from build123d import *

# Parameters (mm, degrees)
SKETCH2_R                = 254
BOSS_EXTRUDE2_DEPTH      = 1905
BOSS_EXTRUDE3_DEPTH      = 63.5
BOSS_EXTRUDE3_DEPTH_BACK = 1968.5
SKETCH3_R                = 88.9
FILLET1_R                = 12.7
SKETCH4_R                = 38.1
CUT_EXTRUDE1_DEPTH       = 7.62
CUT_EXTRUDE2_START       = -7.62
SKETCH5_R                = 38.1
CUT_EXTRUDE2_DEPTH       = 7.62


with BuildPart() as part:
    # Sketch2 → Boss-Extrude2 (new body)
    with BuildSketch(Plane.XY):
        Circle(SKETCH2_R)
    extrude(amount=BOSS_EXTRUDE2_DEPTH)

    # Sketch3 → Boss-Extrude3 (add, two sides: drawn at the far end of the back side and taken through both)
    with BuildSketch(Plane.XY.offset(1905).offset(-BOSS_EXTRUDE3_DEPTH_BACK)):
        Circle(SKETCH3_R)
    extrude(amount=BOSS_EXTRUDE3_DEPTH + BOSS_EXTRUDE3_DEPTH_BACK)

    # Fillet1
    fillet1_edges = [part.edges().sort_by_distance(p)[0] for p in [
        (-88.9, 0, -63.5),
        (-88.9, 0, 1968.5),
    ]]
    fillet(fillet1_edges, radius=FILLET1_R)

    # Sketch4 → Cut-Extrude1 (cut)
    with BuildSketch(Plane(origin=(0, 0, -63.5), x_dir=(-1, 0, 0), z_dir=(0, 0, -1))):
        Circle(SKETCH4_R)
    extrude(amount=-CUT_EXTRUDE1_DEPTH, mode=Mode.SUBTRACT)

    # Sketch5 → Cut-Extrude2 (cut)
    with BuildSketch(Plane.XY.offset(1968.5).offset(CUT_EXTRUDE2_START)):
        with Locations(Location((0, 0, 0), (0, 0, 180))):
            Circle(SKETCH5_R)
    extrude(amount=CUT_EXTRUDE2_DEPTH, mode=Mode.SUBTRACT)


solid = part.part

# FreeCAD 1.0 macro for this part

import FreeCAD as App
import Part
import Sketcher
from FreeCAD import Vector
Q = App.Units.Quantity


def edges_at(feature, points):
    """Names of the edges that pass closest to the given points."""
    edges = feature.Shape.Edges
    near = lambda p: min(range(len(edges)), key=lambda i: edges[i].distToShape(Part.Vertex(*p))[0])
    return sorted({f"Edge{near(p) + 1}" for p in points})

doc = App.newDocument("Part")
body = doc.addObject("PartDesign::Body", "Body")

# Sketch on XY plane
sketch1 = body.newObject("Sketcher::SketchObject", "Sketch")
sketch1.AttachmentSupport = (doc.getObject("XY_Plane"), [""])
sketch1.MapMode = "FlatFace"
sketch1.addGeometry(Part.Circle(Vector(0, 0, 0), Vector(0, 0, 1), 254), False)
sketch1.addConstraint([
    Sketcher.Constraint("Coincident", 0, 3, -1, 1),
    Sketcher.Constraint("Diameter", 0, Q("20 in")),
])
pad1 = body.newObject("PartDesign::Pad", "Pad")
pad1.Profile = sketch1
pad1.Length = Q("75 in")

# Sketch on XY plane
sketch2 = body.newObject("Sketcher::SketchObject", "Sketch001")
sketch2.AttachmentSupport = (doc.getObject("XY_Plane"), [""])
sketch2.MapMode = "FlatFace"
sketch2.AttachmentOffset = App.Placement(Vector(0, 0, 75 * 25.4), App.Rotation())
sketch2.addGeometry(Part.Circle(Vector(0, 0, 0), Vector(0, 0, 1), 89), False)
sketch2.addConstraint([
    Sketcher.Constraint("Coincident", 0, 3, -1, 1),
    Sketcher.Constraint("Diameter", 0, Q("7 in")),
])
pad2 = body.newObject("PartDesign::Pad", "Pad001")
pad2.Profile = sketch2
pad2.Type = "TwoLengths"
pad2.Length = Q("2.5 in")
pad2.Length2 = Q("77.5 in")
doc.recompute()

fillet = body.newObject("PartDesign::Fillet", "Fillet")
fillet.Base = (pad2, edges_at(pad2, [(-88.9, 0, -63.5), (-88.9, 0, 1968.5)]))
fillet.Radius = Q("0.5 in")

# Sketch on XY plane
sketch3 = body.newObject("Sketcher::SketchObject", "Sketch002")
sketch3.AttachmentSupport = (doc.getObject("XY_Plane"), [""])
sketch3.MapMode = "FlatFace"
sketch3.AttachmentOffset = App.Placement(Vector(0, 0, -2.5 * 25.4), App.Rotation())
sketch3.addGeometry(Part.Circle(Vector(0, 0, 0), Vector(0, 0, 1), 38), False)
sketch3.addConstraint([
    Sketcher.Constraint("Coincident", 0, 3, -1, 1),
    Sketcher.Constraint("Diameter", 0, Q("3 in")),
])
pocket1 = body.newObject("PartDesign::Pocket", "Pocket")
pocket1.Profile = sketch3
pocket1.Length = Q("0.3 in")
pocket1.Reversed = True

# Sketch on XY plane
sketch4 = body.newObject("Sketcher::SketchObject", "Sketch003")
sketch4.AttachmentSupport = (doc.getObject("XY_Plane"), [""])
sketch4.MapMode = "FlatFace"
sketch4.AttachmentOffset = App.Placement(Vector(0, 0, 77.2 * 25.4), App.Rotation())
sketch4.addGeometry(Part.Circle(Vector(0, 0, 0), Vector(0, 0, 1), 38), False)
sketch4.addConstraint([
    Sketcher.Constraint("Coincident", 0, 3, -1, 1),
    Sketcher.Constraint("Diameter", 0, Q("3 in")),
])
pocket2 = body.newObject("PartDesign::Pocket", "Pocket001")
pocket2.Profile = sketch4
pocket2.Length = Q("0.3 in")
pocket2.Reversed = True

doc.recompute()
